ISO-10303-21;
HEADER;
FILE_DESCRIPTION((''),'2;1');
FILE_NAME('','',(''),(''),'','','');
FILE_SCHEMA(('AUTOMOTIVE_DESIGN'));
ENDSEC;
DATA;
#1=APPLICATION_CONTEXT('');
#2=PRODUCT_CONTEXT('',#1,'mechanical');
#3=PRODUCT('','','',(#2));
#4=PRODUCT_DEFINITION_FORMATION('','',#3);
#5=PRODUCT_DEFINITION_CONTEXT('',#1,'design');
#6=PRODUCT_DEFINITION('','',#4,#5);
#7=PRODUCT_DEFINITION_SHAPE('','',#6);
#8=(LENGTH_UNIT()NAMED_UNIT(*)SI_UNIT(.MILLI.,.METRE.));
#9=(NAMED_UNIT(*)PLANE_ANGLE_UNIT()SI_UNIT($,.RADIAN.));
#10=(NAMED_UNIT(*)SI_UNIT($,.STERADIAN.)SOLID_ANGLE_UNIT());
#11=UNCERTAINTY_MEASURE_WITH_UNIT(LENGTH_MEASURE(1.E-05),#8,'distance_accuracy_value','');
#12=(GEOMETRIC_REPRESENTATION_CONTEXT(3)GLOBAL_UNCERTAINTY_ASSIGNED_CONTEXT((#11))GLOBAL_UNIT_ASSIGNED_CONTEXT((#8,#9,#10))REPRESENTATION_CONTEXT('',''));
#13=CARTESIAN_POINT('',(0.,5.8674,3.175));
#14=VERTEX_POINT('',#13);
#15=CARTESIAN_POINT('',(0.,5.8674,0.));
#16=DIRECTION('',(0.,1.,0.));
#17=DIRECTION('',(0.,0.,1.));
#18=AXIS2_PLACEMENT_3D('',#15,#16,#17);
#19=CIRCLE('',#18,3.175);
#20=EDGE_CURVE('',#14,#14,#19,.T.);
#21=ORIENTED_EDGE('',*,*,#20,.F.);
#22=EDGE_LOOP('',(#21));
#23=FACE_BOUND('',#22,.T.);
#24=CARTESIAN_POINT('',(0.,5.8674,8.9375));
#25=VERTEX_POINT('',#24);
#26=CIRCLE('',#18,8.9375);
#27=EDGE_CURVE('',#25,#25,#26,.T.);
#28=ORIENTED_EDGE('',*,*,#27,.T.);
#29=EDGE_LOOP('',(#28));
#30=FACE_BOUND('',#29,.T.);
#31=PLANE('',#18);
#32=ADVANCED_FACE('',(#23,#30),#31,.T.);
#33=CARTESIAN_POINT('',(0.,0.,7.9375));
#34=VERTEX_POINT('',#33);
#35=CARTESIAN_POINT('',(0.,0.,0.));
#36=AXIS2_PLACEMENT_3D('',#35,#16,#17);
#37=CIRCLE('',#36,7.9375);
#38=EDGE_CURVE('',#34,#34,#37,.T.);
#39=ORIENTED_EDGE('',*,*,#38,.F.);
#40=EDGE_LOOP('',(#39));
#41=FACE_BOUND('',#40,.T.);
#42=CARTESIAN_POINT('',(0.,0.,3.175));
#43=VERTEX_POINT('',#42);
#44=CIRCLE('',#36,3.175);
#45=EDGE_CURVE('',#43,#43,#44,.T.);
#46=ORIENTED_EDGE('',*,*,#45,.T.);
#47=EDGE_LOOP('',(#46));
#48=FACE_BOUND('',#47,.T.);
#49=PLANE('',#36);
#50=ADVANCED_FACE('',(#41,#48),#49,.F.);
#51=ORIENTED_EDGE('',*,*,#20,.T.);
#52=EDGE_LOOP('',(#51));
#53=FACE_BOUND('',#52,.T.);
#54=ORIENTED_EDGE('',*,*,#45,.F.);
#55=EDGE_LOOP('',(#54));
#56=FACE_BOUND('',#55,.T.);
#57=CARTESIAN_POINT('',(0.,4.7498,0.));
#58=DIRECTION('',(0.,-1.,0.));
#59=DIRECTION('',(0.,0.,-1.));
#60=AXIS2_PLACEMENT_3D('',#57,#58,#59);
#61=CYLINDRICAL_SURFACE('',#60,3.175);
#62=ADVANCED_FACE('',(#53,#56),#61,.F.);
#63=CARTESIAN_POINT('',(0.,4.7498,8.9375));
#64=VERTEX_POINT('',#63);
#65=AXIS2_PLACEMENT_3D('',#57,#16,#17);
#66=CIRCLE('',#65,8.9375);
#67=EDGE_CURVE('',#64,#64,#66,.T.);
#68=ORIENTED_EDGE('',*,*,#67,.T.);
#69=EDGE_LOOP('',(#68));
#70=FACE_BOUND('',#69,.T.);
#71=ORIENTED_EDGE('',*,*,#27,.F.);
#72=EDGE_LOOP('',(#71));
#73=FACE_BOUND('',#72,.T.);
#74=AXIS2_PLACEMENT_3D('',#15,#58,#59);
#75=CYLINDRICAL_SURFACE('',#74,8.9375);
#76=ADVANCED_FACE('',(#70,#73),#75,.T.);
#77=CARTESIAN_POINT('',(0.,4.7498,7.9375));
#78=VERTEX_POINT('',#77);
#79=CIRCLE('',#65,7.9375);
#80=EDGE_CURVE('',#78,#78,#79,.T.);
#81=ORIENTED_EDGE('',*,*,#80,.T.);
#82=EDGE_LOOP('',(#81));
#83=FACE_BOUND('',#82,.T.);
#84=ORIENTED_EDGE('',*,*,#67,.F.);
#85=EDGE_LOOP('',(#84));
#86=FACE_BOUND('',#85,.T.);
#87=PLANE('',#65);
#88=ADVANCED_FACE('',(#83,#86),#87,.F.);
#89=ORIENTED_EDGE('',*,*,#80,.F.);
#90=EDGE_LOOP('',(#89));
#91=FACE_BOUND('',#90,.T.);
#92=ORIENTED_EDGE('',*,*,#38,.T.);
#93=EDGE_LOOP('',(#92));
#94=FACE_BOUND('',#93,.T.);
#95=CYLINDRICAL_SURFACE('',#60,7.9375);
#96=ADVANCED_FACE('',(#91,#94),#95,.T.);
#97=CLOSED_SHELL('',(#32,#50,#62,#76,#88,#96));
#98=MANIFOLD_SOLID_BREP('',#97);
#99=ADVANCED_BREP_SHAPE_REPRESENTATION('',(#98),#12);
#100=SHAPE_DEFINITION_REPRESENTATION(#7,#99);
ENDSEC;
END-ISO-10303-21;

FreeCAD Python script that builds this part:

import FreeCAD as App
import Part
import Sketcher
from FreeCAD import Vector
Q = App.Units.Quantity

doc = App.newDocument("Part")
body = doc.addObject("PartDesign::Body", "Body")

sketch1 = body.newObject("Sketcher::SketchObject", "Sketch")
sketch1.AttachmentSupport = (doc.getObject("XZ_Plane"), [""])
sketch1.MapMode = "FlatFace"
sketch1.addGeometry(Part.Circle(Vector(0, 0, 0), Vector(0, 0, 1), 7.9375), False)
sketch1.addGeometry(Part.Circle(Vector(0, 0, 0), Vector(0, 0, 1), 3.175), False)
sketch1.addConstraint(Sketcher.Constraint("Coincident", 0, 3, -1, 1))
sketch1.addConstraint(Sketcher.Constraint("Coincident", 1, 3, -1, 1))
sketch1.addConstraint(Sketcher.Constraint("Diameter", 1, Q("0.25 in")))
sketch1.addConstraint(Sketcher.Constraint("Diameter", 0, Q("0.625 in")))
pad1 = body.newObject("PartDesign::Pad", "Pad")
pad1.Profile = sketch1
pad1.Length = Q("0.187 in")
pad1.Reversed = True

sketch2 = body.newObject("Sketcher::SketchObject", "Sketch001")
sketch2.AttachmentSupport = (doc.getObject("XZ_Plane"), [""])
sketch2.MapMode = "FlatFace"
sketch2.AttachmentOffset = App.Placement(Vector(0, 0, -0.187 * 25.4), App.Rotation())
sketch2.addGeometry(Part.Circle(Vector(0, 0, 0), Vector(0, 0, 1), 8.9375), False)
sketch2.addGeometry(Part.Circle(Vector(0, 0, 0), Vector(0, 0, 1), 3.175), False)
sketch2.addConstraint(Sketcher.Constraint("Coincident", 0, 3, -1, 1))
sketch2.addConstraint(Sketcher.Constraint("Coincident", 1, 3, -1, 1))
sketch2.addConstraint(Sketcher.Constraint("Diameter", 1, Q("0.25 in")))
sketch2.addConstraint(Sketcher.Constraint("Diameter", 0, Q("17.875 mm")))
pad2 = body.newObject("PartDesign::Pad", "Pad001")
pad2.Profile = sketch2
pad2.Length = Q("0.044 in")
pad2.Reversed = True

doc.recompute()
